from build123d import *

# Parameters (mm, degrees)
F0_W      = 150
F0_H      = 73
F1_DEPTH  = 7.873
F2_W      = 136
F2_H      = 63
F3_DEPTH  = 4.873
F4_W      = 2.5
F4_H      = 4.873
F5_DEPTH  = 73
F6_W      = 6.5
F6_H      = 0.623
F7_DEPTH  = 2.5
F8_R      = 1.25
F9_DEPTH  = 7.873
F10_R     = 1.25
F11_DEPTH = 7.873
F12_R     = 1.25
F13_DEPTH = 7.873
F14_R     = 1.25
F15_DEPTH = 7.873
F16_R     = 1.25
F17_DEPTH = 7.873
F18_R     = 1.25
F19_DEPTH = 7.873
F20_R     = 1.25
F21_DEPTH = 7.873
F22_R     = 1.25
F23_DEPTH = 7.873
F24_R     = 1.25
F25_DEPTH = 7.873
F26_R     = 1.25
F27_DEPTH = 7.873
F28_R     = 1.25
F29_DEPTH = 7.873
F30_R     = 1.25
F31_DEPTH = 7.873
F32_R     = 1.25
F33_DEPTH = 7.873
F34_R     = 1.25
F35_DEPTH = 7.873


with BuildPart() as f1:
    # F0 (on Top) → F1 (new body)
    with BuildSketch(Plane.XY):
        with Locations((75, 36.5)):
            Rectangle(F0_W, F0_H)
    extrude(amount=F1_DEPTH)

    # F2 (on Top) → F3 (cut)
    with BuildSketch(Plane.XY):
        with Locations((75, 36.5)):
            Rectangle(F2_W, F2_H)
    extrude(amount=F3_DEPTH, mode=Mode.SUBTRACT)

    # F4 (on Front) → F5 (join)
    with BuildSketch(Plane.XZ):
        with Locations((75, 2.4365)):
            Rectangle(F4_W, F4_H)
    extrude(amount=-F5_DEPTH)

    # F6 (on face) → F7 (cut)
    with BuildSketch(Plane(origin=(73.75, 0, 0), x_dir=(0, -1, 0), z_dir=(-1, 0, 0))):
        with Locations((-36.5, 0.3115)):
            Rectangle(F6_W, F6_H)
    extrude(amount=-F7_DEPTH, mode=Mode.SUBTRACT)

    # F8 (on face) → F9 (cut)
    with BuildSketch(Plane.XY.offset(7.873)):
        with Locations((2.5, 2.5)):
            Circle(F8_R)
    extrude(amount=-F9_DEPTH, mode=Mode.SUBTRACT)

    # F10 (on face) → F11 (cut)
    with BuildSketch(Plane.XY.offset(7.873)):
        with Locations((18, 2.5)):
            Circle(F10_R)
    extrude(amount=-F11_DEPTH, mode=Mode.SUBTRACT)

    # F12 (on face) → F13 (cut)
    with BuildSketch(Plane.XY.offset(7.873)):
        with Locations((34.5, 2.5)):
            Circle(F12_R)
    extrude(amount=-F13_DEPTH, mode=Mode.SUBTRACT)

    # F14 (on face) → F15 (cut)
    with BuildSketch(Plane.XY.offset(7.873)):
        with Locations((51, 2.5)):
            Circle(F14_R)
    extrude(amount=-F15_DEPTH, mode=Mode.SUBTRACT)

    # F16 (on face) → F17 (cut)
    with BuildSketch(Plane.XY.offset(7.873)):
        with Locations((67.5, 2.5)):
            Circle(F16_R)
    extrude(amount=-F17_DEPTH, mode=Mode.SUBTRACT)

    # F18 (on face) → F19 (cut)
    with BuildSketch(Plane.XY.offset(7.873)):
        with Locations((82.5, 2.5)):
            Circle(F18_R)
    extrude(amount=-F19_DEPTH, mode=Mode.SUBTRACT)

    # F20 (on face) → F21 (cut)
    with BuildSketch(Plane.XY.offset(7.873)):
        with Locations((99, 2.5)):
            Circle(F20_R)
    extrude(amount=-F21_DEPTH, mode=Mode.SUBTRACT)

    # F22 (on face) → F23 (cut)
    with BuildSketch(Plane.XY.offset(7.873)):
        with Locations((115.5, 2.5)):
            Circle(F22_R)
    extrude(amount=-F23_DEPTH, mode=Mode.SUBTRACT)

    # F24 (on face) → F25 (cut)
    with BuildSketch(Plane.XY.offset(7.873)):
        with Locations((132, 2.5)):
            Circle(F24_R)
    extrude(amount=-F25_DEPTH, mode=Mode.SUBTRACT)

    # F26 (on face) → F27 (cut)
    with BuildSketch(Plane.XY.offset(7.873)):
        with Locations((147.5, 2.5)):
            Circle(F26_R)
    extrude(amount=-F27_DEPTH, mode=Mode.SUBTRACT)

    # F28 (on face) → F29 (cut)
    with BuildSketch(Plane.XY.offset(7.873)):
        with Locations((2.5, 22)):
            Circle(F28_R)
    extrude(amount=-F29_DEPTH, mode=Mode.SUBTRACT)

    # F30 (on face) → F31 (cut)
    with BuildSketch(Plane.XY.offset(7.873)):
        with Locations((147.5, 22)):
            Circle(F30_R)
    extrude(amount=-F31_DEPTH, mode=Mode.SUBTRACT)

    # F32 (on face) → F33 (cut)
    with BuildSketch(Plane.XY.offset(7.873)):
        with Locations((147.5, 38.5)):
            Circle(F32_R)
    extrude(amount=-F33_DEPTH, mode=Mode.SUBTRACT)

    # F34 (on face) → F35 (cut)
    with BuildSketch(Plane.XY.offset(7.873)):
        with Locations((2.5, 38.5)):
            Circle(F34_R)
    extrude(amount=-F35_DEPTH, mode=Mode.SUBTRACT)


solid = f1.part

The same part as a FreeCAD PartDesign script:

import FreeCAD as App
import Part
import Sketcher
from FreeCAD import Vector
Q = App.Units.Quantity


def add_polygon(sketch, points):
    """Adds a closed chain of lines whose ends are joined by coincident constraints."""
    first, n = sketch.GeometryCount, len(points)
    for a, b in zip(points, points[1:] + points[:1]):
        sketch.addGeometry(Part.LineSegment(App.Vector(*a, 0), App.Vector(*b, 0)), False)
    for i in range(n):
        sketch.addConstraint(Sketcher.Constraint("Coincident", first + i, 2, first + (i + 1) % n, 1))

doc = App.newDocument("Part")
body = doc.addObject("PartDesign::Body", "Body")

# Sketch on XY plane
sketch1 = body.newObject("Sketcher::SketchObject", "Sketch")
sketch1.AttachmentSupport = (doc.getObject("XY_Plane"), [""])
sketch1.MapMode = "FlatFace"
add_polygon(sketch1, [(0, 73), (0, 0), (150, 0), (150, 73)])  # lines 0-3
sketch1.addConstraint(Sketcher.Constraint("Vertical", 0))
sketch1.addConstraint(Sketcher.Constraint("Horizontal", 1))
sketch1.addConstraint(Sketcher.Constraint("Vertical", 2))
sketch1.addConstraint(Sketcher.Constraint("Horizontal", 3))
sketch1.addConstraint(Sketcher.Constraint("Coincident", 0, 2, -1, 1))
sketch1.addConstraint(Sketcher.Constraint("DistanceX", 1, 1, 1, 2, Q("150 mm")))
sketch1.addConstraint(Sketcher.Constraint("DistanceY", 0, 2, 0, 1, Q("73 mm")))
pad1 = body.newObject("PartDesign::Pad", "Pad")
pad1.Profile = sketch1
pad1.Length = 7.873

# Sketch on XY plane
sketch2 = body.newObject("Sketcher::SketchObject", "Sketch001")
sketch2.AttachmentSupport = (doc.getObject("XY_Plane"), [""])
sketch2.MapMode = "FlatFace"
add_polygon(sketch2, [(7, 68), (7, 5), (143, 5), (143, 68)])  # lines 0-3
sketch2.addConstraint(Sketcher.Constraint("Vertical", 0))
sketch2.addConstraint(Sketcher.Constraint("Horizontal", 1))
sketch2.addConstraint(Sketcher.Constraint("Vertical", 2))
sketch2.addConstraint(Sketcher.Constraint("Horizontal", 3))
sketch2.addConstraint(Sketcher.Constraint("DistanceX", 1, 1, 1, 2, Q("136 mm")))
sketch2.addConstraint(Sketcher.Constraint("DistanceY", 0, 2, 0, 1, Q("63 mm")))
sketch2.addConstraint(Sketcher.Constraint("DistanceX", -1, 1, 0, 2, Q("7 mm")))
sketch2.addConstraint(Sketcher.Constraint("DistanceY", -1, 1, 0, 2, Q("5 mm")))
pocket1 = body.newObject("PartDesign::Pocket", "Pocket")
pocket1.Profile = sketch2
pocket1.Length = 4.873
pocket1.Reversed = True

# Sketch on XZ plane
sketch3 = body.newObject("Sketcher::SketchObject", "Sketch002")
sketch3.AttachmentSupport = (doc.getObject("XZ_Plane"), [""])
sketch3.MapMode = "FlatFace"
add_polygon(sketch3, [(73.75, 4.873), (73.75, 0), (76.25, 0), (76.25, 4.873)])  # lines 0-3
sketch3.addConstraint(Sketcher.Constraint("Vertical", 0))
sketch3.addConstraint(Sketcher.Constraint("Horizontal", 1))
sketch3.addConstraint(Sketcher.Constraint("Vertical", 2))
sketch3.addConstraint(Sketcher.Constraint("Horizontal", 3))
sketch3.addConstraint(Sketcher.Constraint("PointOnObject", 0, 2, -1))
sketch3.addConstraint(Sketcher.Constraint("DistanceX", 1, 1, 1, 2, Q("2.5 mm")))
sketch3.addConstraint(Sketcher.Constraint("DistanceY", 0, 2, 0, 1, Q("4.873 mm")))
sketch3.addConstraint(Sketcher.Constraint("DistanceX", -1, 1, 0, 2, Q("73.75 mm")))
pad2 = body.newObject("PartDesign::Pad", "Pad001")
pad2.Profile = sketch3
pad2.Length = 73
pad2.Reversed = True

# Sketch on YZ plane
sketch4 = body.newObject("Sketcher::SketchObject", "Sketch003")
sketch4.AttachmentSupport = (doc.getObject("YZ_Plane"), [""])
sketch4.MapMode = "FlatFace"
sketch4.AttachmentOffset = App.Placement(Vector(0, 0, 73.75), App.Rotation())
add_polygon(sketch4, [(39.75, 0.623), (39.75, 0), (33.25, 0), (33.25, 0.623)])  # lines 0-3
sketch4.addConstraint(Sketcher.Constraint("Vertical", 0))
sketch4.addConstraint(Sketcher.Constraint("Horizontal", 1))
sketch4.addConstraint(Sketcher.Constraint("Vertical", 2))
sketch4.addConstraint(Sketcher.Constraint("Horizontal", 3))
sketch4.addConstraint(Sketcher.Constraint("PointOnObject", 0, 2, -1))
sketch4.addConstraint(Sketcher.Constraint("DistanceX", 1, 2, 1, 1, Q("6.5 mm")))
sketch4.addConstraint(Sketcher.Constraint("DistanceY", 0, 2, 0, 1, Q("0.623 mm")))
sketch4.addConstraint(Sketcher.Constraint("DistanceX", -1, 1, 0, 2, Q("39.75 mm")))
pocket2 = body.newObject("PartDesign::Pocket", "Pocket001")
pocket2.Profile = sketch4
pocket2.Length = 2.5
pocket2.Reversed = True

# Sketch on XY plane
sketch5 = body.newObject("Sketcher::SketchObject", "Sketch004")
sketch5.AttachmentSupport = (doc.getObject("XY_Plane"), [""])
sketch5.MapMode = "FlatFace"
sketch5.AttachmentOffset = App.Placement(Vector(0, 0, 7.873), App.Rotation())
sketch5.addGeometry(Part.Circle(Vector(2.5, 2.5, 0), Vector(0, 0, 1), 1.25), False)
sketch5.addConstraint(Sketcher.Constraint("Diameter", 0, Q("2.5 mm")))
sketch5.addConstraint(Sketcher.Constraint("DistanceX", -1, 1, 0, 3, Q("2.5 mm")))
sketch5.addConstraint(Sketcher.Constraint("DistanceY", -1, 1, 0, 3, Q("2.5 mm")))
pocket3 = body.newObject("PartDesign::Pocket", "Pocket002")
pocket3.Profile = sketch5
pocket3.Length = 7.873

# Sketch on XY plane
sketch6 = body.newObject("Sketcher::SketchObject", "Sketch005")
sketch6.AttachmentSupport = (doc.getObject("XY_Plane"), [""])
sketch6.MapMode = "FlatFace"
sketch6.AttachmentOffset = App.Placement(Vector(0, 0, 7.873), App.Rotation())
sketch6.addGeometry(Part.Circle(Vector(18, 2.5, 0), Vector(0, 0, 1), 1.25), False)
sketch6.addConstraint(Sketcher.Constraint("Diameter", 0, Q("2.5 mm")))
sketch6.addConstraint(Sketcher.Constraint("DistanceX", -1, 1, 0, 3, Q("18 mm")))
sketch6.addConstraint(Sketcher.Constraint("DistanceY", -1, 1, 0, 3, Q("2.5 mm")))
pocket4 = body.newObject("PartDesign::Pocket", "Pocket003")
pocket4.Profile = sketch6
pocket4.Length = 7.873

# Sketch on XY plane
sketch7 = body.newObject("Sketcher::SketchObject", "Sketch006")
sketch7.AttachmentSupport = (doc.getObject("XY_Plane"), [""])
sketch7.MapMode = "FlatFace"
sketch7.AttachmentOffset = App.Placement(Vector(0, 0, 7.873), App.Rotation())
sketch7.addGeometry(Part.Circle(Vector(34.5, 2.5, 0), Vector(0, 0, 1), 1.25), False)
sketch7.addConstraint(Sketcher.Constraint("Diameter", 0, Q("2.5 mm")))
sketch7.addConstraint(Sketcher.Constraint("DistanceX", -1, 1, 0, 3, Q("34.5 mm")))
sketch7.addConstraint(Sketcher.Constraint("DistanceY", -1, 1, 0, 3, Q("2.5 mm")))
pocket5 = body.newObject("PartDesign::Pocket", "Pocket004")
pocket5.Profile = sketch7
pocket5.Length = 7.873

# Sketch on XY plane
sketch8 = body.newObject("Sketcher::SketchObject", "Sketch007")
sketch8.AttachmentSupport = (doc.getObject("XY_Plane"), [""])
sketch8.MapMode = "FlatFace"
sketch8.AttachmentOffset = App.Placement(Vector(0, 0, 7.873), App.Rotation())
sketch8.addGeometry(Part.Circle(Vector(51, 2.5, 0), Vector(0, 0, 1), 1.25), False)
sketch8.addConstraint(Sketcher.Constraint("Diameter", 0, Q("2.5 mm")))
sketch8.addConstraint(Sketcher.Constraint("DistanceX", -1, 1, 0, 3, Q("51 mm")))
sketch8.addConstraint(Sketcher.Constraint("DistanceY", -1, 1, 0, 3, Q("2.5 mm")))
pocket6 = body.newObject("PartDesign::Pocket", "Pocket005")
pocket6.Profile = sketch8
pocket6.Length = 7.873

# Sketch on XY plane
sketch9 = body.newObject("Sketcher::SketchObject", "Sketch008")
sketch9.AttachmentSupport = (doc.getObject("XY_Plane"), [""])
sketch9.MapMode = "FlatFace"
sketch9.AttachmentOffset = App.Placement(Vector(0, 0, 7.873), App.Rotation())
sketch9.addGeometry(Part.Circle(Vector(67.5, 2.5, 0), Vector(0, 0, 1), 1.25), False)
sketch9.addConstraint(Sketcher.Constraint("Diameter", 0, Q("2.5 mm")))
sketch9.addConstraint(Sketcher.Constraint("DistanceX", -1, 1, 0, 3, Q("67.5 mm")))
sketch9.addConstraint(Sketcher.Constraint("DistanceY", -1, 1, 0, 3, Q("2.5 mm")))
pocket7 = body.newObject("PartDesign::Pocket", "Pocket006")
pocket7.Profile = sketch9
pocket7.Length = 7.873

# Sketch on XY plane
sketch10 = body.newObject("Sketcher::SketchObject", "Sketch009")
sketch10.AttachmentSupport = (doc.getObject("XY_Plane"), [""])
sketch10.MapMode = "FlatFace"
sketch10.AttachmentOffset = App.Placement(Vector(0, 0, 7.873), App.Rotation())
sketch10.addGeometry(Part.Circle(Vector(82.5, 2.5, 0), Vector(0, 0, 1), 1.25), False)
sketch10.addConstraint(Sketcher.Constraint("Diameter", 0, Q("2.5 mm")))
sketch10.addConstraint(Sketcher.Constraint("DistanceX", -1, 1, 0, 3, Q("82.5 mm")))
sketch10.addConstraint(Sketcher.Constraint("DistanceY", -1, 1, 0, 3, Q("2.5 mm")))
pocket8 = body.newObject("PartDesign::Pocket", "Pocket007")
pocket8.Profile = sketch10
pocket8.Length = 7.873

# Sketch on XY plane
sketch11 = body.newObject("Sketcher::SketchObject", "Sketch010")
sketch11.AttachmentSupport = (doc.getObject("XY_Plane"), [""])
sketch11.MapMode = "FlatFace"
sketch11.AttachmentOffset = App.Placement(Vector(0, 0, 7.873), App.Rotation())
sketch11.addGeometry(Part.Circle(Vector(99, 2.5, 0), Vector(0, 0, 1), 1.25), False)
sketch11.addConstraint(Sketcher.Constraint("Diameter", 0, Q("2.5 mm")))
sketch11.addConstraint(Sketcher.Constraint("DistanceX", -1, 1, 0, 3, Q("99 mm")))
sketch11.addConstraint(Sketcher.Constraint("DistanceY", -1, 1, 0, 3, Q("2.5 mm")))
pocket9 = body.newObject("PartDesign::Pocket", "Pocket008")
pocket9.Profile = sketch11
pocket9.Length = 7.873

# Sketch on XY plane
sketch12 = body.newObject("Sketcher::SketchObject", "Sketch011")
sketch12.AttachmentSupport = (doc.getObject("XY_Plane"), [""])
sketch12.MapMode = "FlatFace"
sketch12.AttachmentOffset = App.Placement(Vector(0, 0, 7.873), App.Rotation())
sketch12.addGeometry(Part.Circle(Vector(115.5, 2.5, 0), Vector(0, 0, 1), 1.25), False)
sketch12.addConstraint(Sketcher.Constraint("Diameter", 0, Q("2.5 mm")))
sketch12.addConstraint(Sketcher.Constraint("DistanceX", -1, 1, 0, 3, Q("115.5 mm")))
sketch12.addConstraint(Sketcher.Constraint("DistanceY", -1, 1, 0, 3, Q("2.5 mm")))
pocket10 = body.newObject("PartDesign::Pocket", "Pocket009")
pocket10.Profile = sketch12
pocket10.Length = 7.873

# Sketch on XY plane
sketch13 = body.newObject("Sketcher::SketchObject", "Sketch012")
sketch13.AttachmentSupport = (doc.getObject("XY_Plane"), [""])
sketch13.MapMode = "FlatFace"
sketch13.AttachmentOffset = App.Placement(Vector(0, 0, 7.873), App.Rotation())
sketch13.addGeometry(Part.Circle(Vector(132, 2.5, 0), Vector(0, 0, 1), 1.25), False)
sketch13.addConstraint(Sketcher.Constraint("Diameter", 0, Q("2.5 mm")))
sketch13.addConstraint(Sketcher.Constraint("DistanceX", -1, 1, 0, 3, Q("132 mm")))
sketch13.addConstraint(Sketcher.Constraint("DistanceY", -1, 1, 0, 3, Q("2.5 mm")))
pocket11 = body.newObject("PartDesign::Pocket", "Pocket010")
pocket11.Profile = sketch13
pocket11.Length = 7.873

# Sketch on XY plane
sketch14 = body.newObject("Sketcher::SketchObject", "Sketch013")
sketch14.AttachmentSupport = (doc.getObject("XY_Plane"), [""])
sketch14.MapMode = "FlatFace"
sketch14.AttachmentOffset = App.Placement(Vector(0, 0, 7.873), App.Rotation())
sketch14.addGeometry(Part.Circle(Vector(147.5, 2.5, 0), Vector(0, 0, 1), 1.25), False)
sketch14.addConstraint(Sketcher.Constraint("Diameter", 0, Q("2.5 mm")))
sketch14.addConstraint(Sketcher.Constraint("DistanceX", -1, 1, 0, 3, Q("147.5 mm")))
sketch14.addConstraint(Sketcher.Constraint("DistanceY", -1, 1, 0, 3, Q("2.5 mm")))
pocket12 = body.newObject("PartDesign::Pocket", "Pocket011")
pocket12.Profile = sketch14
pocket12.Length = 7.873

# Sketch on XY plane
sketch15 = body.newObject("Sketcher::SketchObject", "Sketch014")
sketch15.AttachmentSupport = (doc.getObject("XY_Plane"), [""])
sketch15.MapMode = "FlatFace"
sketch15.AttachmentOffset = App.Placement(Vector(0, 0, 7.873), App.Rotation())
sketch15.addGeometry(Part.Circle(Vector(2.5, 22, 0), Vector(0, 0, 1), 1.25), False)
sketch15.addConstraint(Sketcher.Constraint("Diameter", 0, Q("2.5 mm")))
sketch15.addConstraint(Sketcher.Constraint("DistanceY", -1, 1, 0, 3, Q("22 mm")))
sketch15.addConstraint(Sketcher.Constraint("DistanceX", -1, 1, 0, 3, Q("2.5 mm")))
pocket13 = body.newObject("PartDesign::Pocket", "Pocket012")
pocket13.Profile = sketch15
pocket13.Length = 7.873

# Sketch on XY plane
sketch16 = body.newObject("Sketcher::SketchObject", "Sketch015")
sketch16.AttachmentSupport = (doc.getObject("XY_Plane"), [""])
sketch16.MapMode = "FlatFace"
sketch16.AttachmentOffset = App.Placement(Vector(0, 0, 7.873), App.Rotation())
sketch16.addGeometry(Part.Circle(Vector(147.5, 22, 0), Vector(0, 0, 1), 1.25), False)
sketch16.addConstraint(Sketcher.Constraint("Diameter", 0, Q("2.5 mm")))
sketch16.addConstraint(Sketcher.Constraint("DistanceY", -1, 1, 0, 3, Q("22 mm")))
sketch16.addConstraint(Sketcher.Constraint("DistanceX", -1, 1, 0, 3, Q("147.5 mm")))
pocket14 = body.newObject("PartDesign::Pocket", "Pocket013")
pocket14.Profile = sketch16
pocket14.Length = 7.873

# Sketch on XY plane
sketch17 = body.newObject("Sketcher::SketchObject", "Sketch016")
sketch17.AttachmentSupport = (doc.getObject("XY_Plane"), [""])
sketch17.MapMode = "FlatFace"
sketch17.AttachmentOffset = App.Placement(Vector(0, 0, 7.873), App.Rotation())
sketch17.addGeometry(Part.Circle(Vector(147.5, 38.5, 0), Vector(0, 0, 1), 1.25), False)
sketch17.addConstraint(Sketcher.Constraint("Diameter", 0, Q("2.5 mm")))
sketch17.addConstraint(Sketcher.Constraint("DistanceX", -1, 1, 0, 3, Q("147.5 mm")))
sketch17.addConstraint(Sketcher.Constraint("DistanceY", -1, 1, 0, 3, Q("38.5 mm")))
pocket15 = body.newObject("PartDesign::Pocket", "Pocket014")
pocket15.Profile = sketch17
pocket15.Length = 7.873

# Sketch on XY plane
sketch18 = body.newObject("Sketcher::SketchObject", "Sketch017")
sketch18.AttachmentSupport = (doc.getObject("XY_Plane"), [""])
sketch18.MapMode = "FlatFace"
sketch18.AttachmentOffset = App.Placement(Vector(0, 0, 7.873), App.Rotation())
sketch18.addGeometry(Part.Circle(Vector(2.5, 38.5, 0), Vector(0, 0, 1), 1.25), False)
sketch18.addConstraint(Sketcher.Constraint("Diameter", 0, Q("2.5 mm")))
sketch18.addConstraint(Sketcher.Constraint("DistanceX", -1, 1, 0, 3, Q("2.5 mm")))
sketch18.addConstraint(Sketcher.Constraint("DistanceY", -1, 1, 0, 3, Q("38.5 mm")))
pocket16 = body.newObject("PartDesign::Pocket", "Pocket015")
pocket16.Profile = sketch18
pocket16.Length = 7.873

doc.recompute()
